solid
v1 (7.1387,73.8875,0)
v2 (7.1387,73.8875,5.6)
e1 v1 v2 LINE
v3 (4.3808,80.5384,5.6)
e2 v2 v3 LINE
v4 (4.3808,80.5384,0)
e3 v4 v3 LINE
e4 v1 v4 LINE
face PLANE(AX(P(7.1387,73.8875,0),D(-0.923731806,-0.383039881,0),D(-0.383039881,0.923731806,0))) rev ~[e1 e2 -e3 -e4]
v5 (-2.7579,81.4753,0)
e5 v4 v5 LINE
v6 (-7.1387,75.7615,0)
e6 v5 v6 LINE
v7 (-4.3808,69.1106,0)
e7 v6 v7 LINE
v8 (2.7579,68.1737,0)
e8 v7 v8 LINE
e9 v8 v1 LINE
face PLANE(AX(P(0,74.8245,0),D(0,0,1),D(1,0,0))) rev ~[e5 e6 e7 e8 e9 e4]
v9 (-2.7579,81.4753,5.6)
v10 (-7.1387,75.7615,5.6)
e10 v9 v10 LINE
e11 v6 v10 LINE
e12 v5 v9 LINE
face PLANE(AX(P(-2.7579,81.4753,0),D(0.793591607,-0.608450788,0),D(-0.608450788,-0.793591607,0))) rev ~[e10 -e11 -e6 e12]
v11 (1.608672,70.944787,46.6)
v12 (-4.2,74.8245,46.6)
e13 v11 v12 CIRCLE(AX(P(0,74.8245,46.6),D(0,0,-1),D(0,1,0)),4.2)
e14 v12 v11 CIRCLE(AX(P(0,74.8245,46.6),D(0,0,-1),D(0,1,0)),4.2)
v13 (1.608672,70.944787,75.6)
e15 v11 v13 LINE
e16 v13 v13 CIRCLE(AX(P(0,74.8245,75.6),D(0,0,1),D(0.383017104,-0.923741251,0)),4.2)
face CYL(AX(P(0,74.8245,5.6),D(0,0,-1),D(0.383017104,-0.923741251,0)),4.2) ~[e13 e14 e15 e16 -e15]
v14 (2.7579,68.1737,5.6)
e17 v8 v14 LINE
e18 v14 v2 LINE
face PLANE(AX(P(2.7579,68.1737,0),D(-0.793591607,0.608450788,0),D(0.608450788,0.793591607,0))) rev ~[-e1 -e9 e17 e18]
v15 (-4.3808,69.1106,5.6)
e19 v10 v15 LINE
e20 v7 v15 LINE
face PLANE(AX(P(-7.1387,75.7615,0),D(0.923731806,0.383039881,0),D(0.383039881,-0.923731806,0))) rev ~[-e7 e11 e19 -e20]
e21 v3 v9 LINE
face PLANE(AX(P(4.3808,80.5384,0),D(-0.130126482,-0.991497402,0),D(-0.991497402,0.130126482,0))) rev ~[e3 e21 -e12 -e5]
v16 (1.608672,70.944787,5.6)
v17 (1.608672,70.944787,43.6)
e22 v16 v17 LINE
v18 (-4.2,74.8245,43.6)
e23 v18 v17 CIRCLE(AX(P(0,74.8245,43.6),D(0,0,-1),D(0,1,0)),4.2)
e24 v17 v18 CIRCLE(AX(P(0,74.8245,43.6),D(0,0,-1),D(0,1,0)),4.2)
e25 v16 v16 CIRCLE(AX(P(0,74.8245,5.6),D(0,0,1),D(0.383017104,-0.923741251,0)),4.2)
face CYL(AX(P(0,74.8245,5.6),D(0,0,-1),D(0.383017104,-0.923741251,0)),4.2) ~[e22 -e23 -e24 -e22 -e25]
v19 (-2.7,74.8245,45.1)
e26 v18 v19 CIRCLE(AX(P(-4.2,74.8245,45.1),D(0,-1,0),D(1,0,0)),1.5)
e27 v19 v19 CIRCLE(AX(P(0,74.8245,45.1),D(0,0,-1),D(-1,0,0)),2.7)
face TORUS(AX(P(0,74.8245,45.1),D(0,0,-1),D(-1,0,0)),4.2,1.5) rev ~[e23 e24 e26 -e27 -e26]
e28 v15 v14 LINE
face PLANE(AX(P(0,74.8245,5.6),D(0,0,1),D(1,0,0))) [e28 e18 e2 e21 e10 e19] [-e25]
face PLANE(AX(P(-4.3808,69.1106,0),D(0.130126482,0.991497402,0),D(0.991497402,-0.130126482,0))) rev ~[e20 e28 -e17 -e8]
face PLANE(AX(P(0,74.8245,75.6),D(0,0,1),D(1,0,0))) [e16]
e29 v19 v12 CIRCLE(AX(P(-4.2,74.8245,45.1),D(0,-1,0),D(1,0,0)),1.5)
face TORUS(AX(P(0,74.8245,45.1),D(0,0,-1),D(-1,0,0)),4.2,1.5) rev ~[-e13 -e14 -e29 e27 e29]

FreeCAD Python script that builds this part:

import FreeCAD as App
import Part
import Sketcher

V = App.Vector

doc = App.newDocument("Part")
body = doc.addObject("PartDesign::Body", "Body")

sketch1 = body.newObject("Sketcher::SketchObject", "Sketch")
sketch1.AttachmentSupport = (doc.getObject("XY_Plane"), [""])
sketch1.MapMode = "FlatFace"
sketch1.addGeometry(Part.LineSegment(V(4, 81, 0), V(-3, 81, 0)), False)
sketch1.addGeometry(Part.LineSegment(V(-3, 81, 0), V(-7, 76, 0)), False)
sketch1.addGeometry(Part.LineSegment(V(-7, 76, 0), V(-4, 69, 0)), False)
sketch1.addGeometry(Part.LineSegment(V(-4, 69, 0), V(3, 68, 0)), False)
sketch1.addGeometry(Part.LineSegment(V(3, 68, 0), V(7, 74, 0)), False)
sketch1.addGeometry(Part.LineSegment(V(7, 74, 0), V(4, 81, 0)), False)
sketch1.addConstraint(Sketcher.Constraint("Coincident", 0, 2, 1, 1))
sketch1.addConstraint(Sketcher.Constraint("Coincident", 1, 2, 2, 1))
sketch1.addConstraint(Sketcher.Constraint("Coincident", 2, 2, 3, 1))
sketch1.addConstraint(Sketcher.Constraint("Coincident", 3, 2, 4, 1))
sketch1.addConstraint(Sketcher.Constraint("Coincident", 4, 2, 5, 1))
sketch1.addConstraint(Sketcher.Constraint("Coincident", 5, 2, 0, 1))
sketch1.addConstraint(Sketcher.Constraint("Parallel", 0, 3))
sketch1.addConstraint(Sketcher.Constraint("Parallel", 1, 4))
sketch1.addConstraint(Sketcher.Constraint("Parallel", 2, 5))
sketch1.addConstraint(Sketcher.Constraint("Equal", 0, 1))
sketch1.addConstraint(Sketcher.Constraint("Equal", 1, 2))
sketch1.addConstraint(Sketcher.Constraint("Equal", 2, 3))
sketch1.addConstraint(Sketcher.Constraint("Distance", 0, 7.2))
sketch1.addConstraint(Sketcher.Constraint("DistanceX", 0, 2, -1, 1, 2.758))
sketch1.addConstraint(Sketcher.Constraint("DistanceX", -1, 1, 3, 2, 2.758))
sketch1.addConstraint(Sketcher.Constraint("DistanceX", 1, 2, 2, 2, 2.758))
sketch1.addConstraint(Sketcher.Constraint("DistanceX", 2, 2, 0, 2, 1.623))
sketch1.addConstraint(Sketcher.Constraint("DistanceY", -1, 1, 0, 2, 81.4753))
pad1 = body.newObject("PartDesign::Pad", "Pad")
pad1.Profile = sketch1
pad1.Length = 5.6

sketch2 = body.newObject("Sketcher::SketchObject", "Sketch001")
sketch2.AttachmentSupport = (doc.getObject("XY_Plane"), [""])
sketch2.MapMode = "FlatFace"
sketch2.AttachmentOffset = App.Placement(V(0, 0, 5.6), App.Rotation())
sketch2.addGeometry(Part.Circle(V(0, 74.8, 0), V(0, 0, 1), 4.2), False)
sketch2.addConstraint(Sketcher.Constraint("PointOnObject", 0, 3, -2))
sketch2.addConstraint(Sketcher.Constraint("Diameter", 0, 8.4))
sketch2.addConstraint(Sketcher.Constraint("DistanceY", -1, 1, 0, 3, 74.8245))
pad2 = body.newObject("PartDesign::Pad", "Pad001")
pad2.Profile = sketch2
pad2.Length = 70

sketch3 = body.newObject("Sketcher::SketchObject", "Sketch002")
sketch3.AttachmentSupport = (doc.getObject("XZ_Plane"), [""])
sketch3.MapMode = "FlatFace"
sketch3.AttachmentOffset = App.Placement(V(0, 0, -74.8245), App.Rotation())
sketch3.addGeometry(Part.Circle(V(-4.2, 45.1, 0), V(0, 0, 1), 1.5), False)
sketch3.addConstraint(Sketcher.Constraint("Diameter", 0, 3.0))
sketch3.addConstraint(Sketcher.Constraint("DistanceX", 0, 3, -1, 1, 4.2))
sketch3.addConstraint(Sketcher.Constraint("DistanceY", -1, 1, 0, 3, 45.1))
groove = body.newObject("PartDesign::Groove", "Groove")
groove.Profile = sketch3
groove.ReferenceAxis = (sketch3, ["V_Axis"])
groove.Angle = 360

doc.recompute()
